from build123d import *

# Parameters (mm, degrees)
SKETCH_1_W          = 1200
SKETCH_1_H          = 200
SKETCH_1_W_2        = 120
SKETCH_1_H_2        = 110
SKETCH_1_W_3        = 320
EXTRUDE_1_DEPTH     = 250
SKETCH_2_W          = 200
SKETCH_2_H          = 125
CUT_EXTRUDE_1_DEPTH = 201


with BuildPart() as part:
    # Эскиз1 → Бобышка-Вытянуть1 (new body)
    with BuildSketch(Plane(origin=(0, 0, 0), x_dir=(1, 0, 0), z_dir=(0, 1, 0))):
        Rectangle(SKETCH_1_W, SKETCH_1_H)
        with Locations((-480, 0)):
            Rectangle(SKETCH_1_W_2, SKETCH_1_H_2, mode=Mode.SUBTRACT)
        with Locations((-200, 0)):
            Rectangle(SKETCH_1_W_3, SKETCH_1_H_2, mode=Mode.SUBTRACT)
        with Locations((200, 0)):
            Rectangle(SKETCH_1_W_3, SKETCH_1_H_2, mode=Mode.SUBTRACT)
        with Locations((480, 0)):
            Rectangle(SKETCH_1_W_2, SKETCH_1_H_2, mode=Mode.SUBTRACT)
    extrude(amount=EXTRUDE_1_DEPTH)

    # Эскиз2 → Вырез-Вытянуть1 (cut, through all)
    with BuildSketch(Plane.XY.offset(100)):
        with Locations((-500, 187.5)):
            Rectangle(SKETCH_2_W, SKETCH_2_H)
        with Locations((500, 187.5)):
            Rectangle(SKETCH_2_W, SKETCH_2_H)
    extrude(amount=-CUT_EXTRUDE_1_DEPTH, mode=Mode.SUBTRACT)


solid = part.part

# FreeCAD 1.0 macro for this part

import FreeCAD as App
import Part
import Sketcher
from FreeCAD import Vector
Q = App.Units.Quantity


def add_polygon(sketch, points):
    """Adds a closed chain of lines whose ends are joined by coincident constraints."""
    first, n = sketch.GeometryCount, len(points)
    for a, b in zip(points, points[1:] + points[:1]):
        sketch.addGeometry(Part.LineSegment(App.Vector(*a, 0), App.Vector(*b, 0)), False)
    for i in range(n):
        sketch.addConstraint(Sketcher.Constraint("Coincident", first + i, 2, first + (i + 1) % n, 1))

doc = App.newDocument("Part")
body = doc.addObject("PartDesign::Body", "Body")

# Sketch on XZ plane
sketch1 = body.newObject("Sketcher::SketchObject", "Sketch")
sketch1.AttachmentSupport = (doc.getObject("XZ_Plane"), [""])
sketch1.MapMode = "FlatFace"
add_polygon(sketch1, [(-600, -100), (-600, 100), (600, 100), (600, -100)])  # lines 0-3
add_polygon(sketch1, [(-420, 55), (-540, 55), (-540, -55), (-420, -55)])  # lines 4-7
add_polygon(sketch1, [(-40, 55), (-360, 55), (-360, -55), (-40, -55)])  # lines 8-11
add_polygon(sketch1, [(360, 55), (40, 55), (40, -55), (360, -55)])  # lines 12-15
add_polygon(sketch1, [(540, 55), (420, 55), (420, -55), (540, -55)])  # lines 16-19
sketch1.addConstraint([
    Sketcher.Constraint("Vertical", 0),
    Sketcher.Constraint("Horizontal", 1),
    Sketcher.Constraint("Vertical", 2),
    Sketcher.Constraint("Horizontal", 3),
    Sketcher.Constraint("Horizontal", 4),
    Sketcher.Constraint("Vertical", 5),
    Sketcher.Constraint("Horizontal", 6),
    Sketcher.Constraint("Vertical", 7),
    Sketcher.Constraint("Horizontal", 8),
    Sketcher.Constraint("Vertical", 9),
    Sketcher.Constraint("Horizontal", 10),
    Sketcher.Constraint("Vertical", 11),
    Sketcher.Constraint("Horizontal", 12),
    Sketcher.Constraint("Vertical", 13),
    Sketcher.Constraint("Horizontal", 14),
    Sketcher.Constraint("Vertical", 15),
    Sketcher.Constraint("Horizontal", 16),
    Sketcher.Constraint("Vertical", 17),
    Sketcher.Constraint("Horizontal", 18),
    Sketcher.Constraint("Vertical", 19),
    Sketcher.Constraint("Symmetric", 0, 2, 2, 2, -1, 1),
    Sketcher.Constraint("Symmetric", 10, 2, 12, 2, -1, 1),
    Sketcher.Constraint("Symmetric", 8, 2, 14, 2, -1, 1),
    Sketcher.Constraint("Symmetric", 6, 2, 16, 2, -1, 1),
    Sketcher.Constraint("Symmetric", 4, 2, 18, 2, -1, 1),
    Sketcher.Constraint("Horizontal", 7, 2, 8, 2),
    Sketcher.Constraint("Horizontal", 6, 2, 9, 2),
    Sketcher.Constraint("Horizontal", 11, 2, 12, 2),
    Sketcher.Constraint("DistanceX", 1, 1, 1, 2, Q("1200 mm")),
    Sketcher.Constraint("DistanceX", 4, 2, 4, 1, Q("120 mm")),
    Sketcher.Constraint("DistanceX", 8, 2, 8, 1, Q("320 mm")),
    Sketcher.Constraint("DistanceY", 0, 1, 0, 2, Q("200 mm")),
    Sketcher.Constraint("DistanceY", 5, 2, 5, 1, Q("110 mm")),
    Sketcher.Constraint("DistanceX", 4, 2, -1, 1, Q("540 mm")),
    Sketcher.Constraint("DistanceX", 8, 2, -1, 1, Q("360 mm")),
])
pad1 = body.newObject("PartDesign::Pad", "Pad")
pad1.Profile = sketch1
pad1.Length = 250
pad1.Reversed = True

# Sketch on XY plane
sketch2 = body.newObject("Sketcher::SketchObject", "Sketch001")
sketch2.AttachmentSupport = (doc.getObject("XY_Plane"), [""])
sketch2.MapMode = "FlatFace"
sketch2.AttachmentOffset = App.Placement(Vector(0, 0, 100), App.Rotation())
add_polygon(sketch2, [(-600, 250), (-600, 125), (-400, 125), (-400, 250)])  # lines 0-3
add_polygon(sketch2, [(400, 250), (400, 125), (600, 125), (600, 250)])  # lines 4-7
sketch2.addConstraint([
    Sketcher.Constraint("Vertical", 0),
    Sketcher.Constraint("Horizontal", 1),
    Sketcher.Constraint("Vertical", 2),
    Sketcher.Constraint("Horizontal", 3),
    Sketcher.Constraint("Vertical", 4),
    Sketcher.Constraint("Horizontal", 5),
    Sketcher.Constraint("Vertical", 6),
    Sketcher.Constraint("Horizontal", 7),
    Sketcher.Constraint("Symmetric", 1, 2, 4, 2, -2),
    Sketcher.Constraint("Symmetric", 3, 2, 6, 2, -2),
    Sketcher.Constraint("DistanceX", 1, 1, 1, 2, Q("200 mm")),
    Sketcher.Constraint("DistanceY", 0, 2, 0, 1, Q("125 mm")),
    Sketcher.Constraint("DistanceX", 0, 2, -1, 1, Q("600 mm")),
    Sketcher.Constraint("DistanceY", -1, 1, 0, 2, Q("125 mm")),
])
pocket1 = body.newObject("PartDesign::Pocket", "Pocket")
pocket1.Profile = sketch2
pocket1.Type = "ThroughAll"

doc.recompute()
